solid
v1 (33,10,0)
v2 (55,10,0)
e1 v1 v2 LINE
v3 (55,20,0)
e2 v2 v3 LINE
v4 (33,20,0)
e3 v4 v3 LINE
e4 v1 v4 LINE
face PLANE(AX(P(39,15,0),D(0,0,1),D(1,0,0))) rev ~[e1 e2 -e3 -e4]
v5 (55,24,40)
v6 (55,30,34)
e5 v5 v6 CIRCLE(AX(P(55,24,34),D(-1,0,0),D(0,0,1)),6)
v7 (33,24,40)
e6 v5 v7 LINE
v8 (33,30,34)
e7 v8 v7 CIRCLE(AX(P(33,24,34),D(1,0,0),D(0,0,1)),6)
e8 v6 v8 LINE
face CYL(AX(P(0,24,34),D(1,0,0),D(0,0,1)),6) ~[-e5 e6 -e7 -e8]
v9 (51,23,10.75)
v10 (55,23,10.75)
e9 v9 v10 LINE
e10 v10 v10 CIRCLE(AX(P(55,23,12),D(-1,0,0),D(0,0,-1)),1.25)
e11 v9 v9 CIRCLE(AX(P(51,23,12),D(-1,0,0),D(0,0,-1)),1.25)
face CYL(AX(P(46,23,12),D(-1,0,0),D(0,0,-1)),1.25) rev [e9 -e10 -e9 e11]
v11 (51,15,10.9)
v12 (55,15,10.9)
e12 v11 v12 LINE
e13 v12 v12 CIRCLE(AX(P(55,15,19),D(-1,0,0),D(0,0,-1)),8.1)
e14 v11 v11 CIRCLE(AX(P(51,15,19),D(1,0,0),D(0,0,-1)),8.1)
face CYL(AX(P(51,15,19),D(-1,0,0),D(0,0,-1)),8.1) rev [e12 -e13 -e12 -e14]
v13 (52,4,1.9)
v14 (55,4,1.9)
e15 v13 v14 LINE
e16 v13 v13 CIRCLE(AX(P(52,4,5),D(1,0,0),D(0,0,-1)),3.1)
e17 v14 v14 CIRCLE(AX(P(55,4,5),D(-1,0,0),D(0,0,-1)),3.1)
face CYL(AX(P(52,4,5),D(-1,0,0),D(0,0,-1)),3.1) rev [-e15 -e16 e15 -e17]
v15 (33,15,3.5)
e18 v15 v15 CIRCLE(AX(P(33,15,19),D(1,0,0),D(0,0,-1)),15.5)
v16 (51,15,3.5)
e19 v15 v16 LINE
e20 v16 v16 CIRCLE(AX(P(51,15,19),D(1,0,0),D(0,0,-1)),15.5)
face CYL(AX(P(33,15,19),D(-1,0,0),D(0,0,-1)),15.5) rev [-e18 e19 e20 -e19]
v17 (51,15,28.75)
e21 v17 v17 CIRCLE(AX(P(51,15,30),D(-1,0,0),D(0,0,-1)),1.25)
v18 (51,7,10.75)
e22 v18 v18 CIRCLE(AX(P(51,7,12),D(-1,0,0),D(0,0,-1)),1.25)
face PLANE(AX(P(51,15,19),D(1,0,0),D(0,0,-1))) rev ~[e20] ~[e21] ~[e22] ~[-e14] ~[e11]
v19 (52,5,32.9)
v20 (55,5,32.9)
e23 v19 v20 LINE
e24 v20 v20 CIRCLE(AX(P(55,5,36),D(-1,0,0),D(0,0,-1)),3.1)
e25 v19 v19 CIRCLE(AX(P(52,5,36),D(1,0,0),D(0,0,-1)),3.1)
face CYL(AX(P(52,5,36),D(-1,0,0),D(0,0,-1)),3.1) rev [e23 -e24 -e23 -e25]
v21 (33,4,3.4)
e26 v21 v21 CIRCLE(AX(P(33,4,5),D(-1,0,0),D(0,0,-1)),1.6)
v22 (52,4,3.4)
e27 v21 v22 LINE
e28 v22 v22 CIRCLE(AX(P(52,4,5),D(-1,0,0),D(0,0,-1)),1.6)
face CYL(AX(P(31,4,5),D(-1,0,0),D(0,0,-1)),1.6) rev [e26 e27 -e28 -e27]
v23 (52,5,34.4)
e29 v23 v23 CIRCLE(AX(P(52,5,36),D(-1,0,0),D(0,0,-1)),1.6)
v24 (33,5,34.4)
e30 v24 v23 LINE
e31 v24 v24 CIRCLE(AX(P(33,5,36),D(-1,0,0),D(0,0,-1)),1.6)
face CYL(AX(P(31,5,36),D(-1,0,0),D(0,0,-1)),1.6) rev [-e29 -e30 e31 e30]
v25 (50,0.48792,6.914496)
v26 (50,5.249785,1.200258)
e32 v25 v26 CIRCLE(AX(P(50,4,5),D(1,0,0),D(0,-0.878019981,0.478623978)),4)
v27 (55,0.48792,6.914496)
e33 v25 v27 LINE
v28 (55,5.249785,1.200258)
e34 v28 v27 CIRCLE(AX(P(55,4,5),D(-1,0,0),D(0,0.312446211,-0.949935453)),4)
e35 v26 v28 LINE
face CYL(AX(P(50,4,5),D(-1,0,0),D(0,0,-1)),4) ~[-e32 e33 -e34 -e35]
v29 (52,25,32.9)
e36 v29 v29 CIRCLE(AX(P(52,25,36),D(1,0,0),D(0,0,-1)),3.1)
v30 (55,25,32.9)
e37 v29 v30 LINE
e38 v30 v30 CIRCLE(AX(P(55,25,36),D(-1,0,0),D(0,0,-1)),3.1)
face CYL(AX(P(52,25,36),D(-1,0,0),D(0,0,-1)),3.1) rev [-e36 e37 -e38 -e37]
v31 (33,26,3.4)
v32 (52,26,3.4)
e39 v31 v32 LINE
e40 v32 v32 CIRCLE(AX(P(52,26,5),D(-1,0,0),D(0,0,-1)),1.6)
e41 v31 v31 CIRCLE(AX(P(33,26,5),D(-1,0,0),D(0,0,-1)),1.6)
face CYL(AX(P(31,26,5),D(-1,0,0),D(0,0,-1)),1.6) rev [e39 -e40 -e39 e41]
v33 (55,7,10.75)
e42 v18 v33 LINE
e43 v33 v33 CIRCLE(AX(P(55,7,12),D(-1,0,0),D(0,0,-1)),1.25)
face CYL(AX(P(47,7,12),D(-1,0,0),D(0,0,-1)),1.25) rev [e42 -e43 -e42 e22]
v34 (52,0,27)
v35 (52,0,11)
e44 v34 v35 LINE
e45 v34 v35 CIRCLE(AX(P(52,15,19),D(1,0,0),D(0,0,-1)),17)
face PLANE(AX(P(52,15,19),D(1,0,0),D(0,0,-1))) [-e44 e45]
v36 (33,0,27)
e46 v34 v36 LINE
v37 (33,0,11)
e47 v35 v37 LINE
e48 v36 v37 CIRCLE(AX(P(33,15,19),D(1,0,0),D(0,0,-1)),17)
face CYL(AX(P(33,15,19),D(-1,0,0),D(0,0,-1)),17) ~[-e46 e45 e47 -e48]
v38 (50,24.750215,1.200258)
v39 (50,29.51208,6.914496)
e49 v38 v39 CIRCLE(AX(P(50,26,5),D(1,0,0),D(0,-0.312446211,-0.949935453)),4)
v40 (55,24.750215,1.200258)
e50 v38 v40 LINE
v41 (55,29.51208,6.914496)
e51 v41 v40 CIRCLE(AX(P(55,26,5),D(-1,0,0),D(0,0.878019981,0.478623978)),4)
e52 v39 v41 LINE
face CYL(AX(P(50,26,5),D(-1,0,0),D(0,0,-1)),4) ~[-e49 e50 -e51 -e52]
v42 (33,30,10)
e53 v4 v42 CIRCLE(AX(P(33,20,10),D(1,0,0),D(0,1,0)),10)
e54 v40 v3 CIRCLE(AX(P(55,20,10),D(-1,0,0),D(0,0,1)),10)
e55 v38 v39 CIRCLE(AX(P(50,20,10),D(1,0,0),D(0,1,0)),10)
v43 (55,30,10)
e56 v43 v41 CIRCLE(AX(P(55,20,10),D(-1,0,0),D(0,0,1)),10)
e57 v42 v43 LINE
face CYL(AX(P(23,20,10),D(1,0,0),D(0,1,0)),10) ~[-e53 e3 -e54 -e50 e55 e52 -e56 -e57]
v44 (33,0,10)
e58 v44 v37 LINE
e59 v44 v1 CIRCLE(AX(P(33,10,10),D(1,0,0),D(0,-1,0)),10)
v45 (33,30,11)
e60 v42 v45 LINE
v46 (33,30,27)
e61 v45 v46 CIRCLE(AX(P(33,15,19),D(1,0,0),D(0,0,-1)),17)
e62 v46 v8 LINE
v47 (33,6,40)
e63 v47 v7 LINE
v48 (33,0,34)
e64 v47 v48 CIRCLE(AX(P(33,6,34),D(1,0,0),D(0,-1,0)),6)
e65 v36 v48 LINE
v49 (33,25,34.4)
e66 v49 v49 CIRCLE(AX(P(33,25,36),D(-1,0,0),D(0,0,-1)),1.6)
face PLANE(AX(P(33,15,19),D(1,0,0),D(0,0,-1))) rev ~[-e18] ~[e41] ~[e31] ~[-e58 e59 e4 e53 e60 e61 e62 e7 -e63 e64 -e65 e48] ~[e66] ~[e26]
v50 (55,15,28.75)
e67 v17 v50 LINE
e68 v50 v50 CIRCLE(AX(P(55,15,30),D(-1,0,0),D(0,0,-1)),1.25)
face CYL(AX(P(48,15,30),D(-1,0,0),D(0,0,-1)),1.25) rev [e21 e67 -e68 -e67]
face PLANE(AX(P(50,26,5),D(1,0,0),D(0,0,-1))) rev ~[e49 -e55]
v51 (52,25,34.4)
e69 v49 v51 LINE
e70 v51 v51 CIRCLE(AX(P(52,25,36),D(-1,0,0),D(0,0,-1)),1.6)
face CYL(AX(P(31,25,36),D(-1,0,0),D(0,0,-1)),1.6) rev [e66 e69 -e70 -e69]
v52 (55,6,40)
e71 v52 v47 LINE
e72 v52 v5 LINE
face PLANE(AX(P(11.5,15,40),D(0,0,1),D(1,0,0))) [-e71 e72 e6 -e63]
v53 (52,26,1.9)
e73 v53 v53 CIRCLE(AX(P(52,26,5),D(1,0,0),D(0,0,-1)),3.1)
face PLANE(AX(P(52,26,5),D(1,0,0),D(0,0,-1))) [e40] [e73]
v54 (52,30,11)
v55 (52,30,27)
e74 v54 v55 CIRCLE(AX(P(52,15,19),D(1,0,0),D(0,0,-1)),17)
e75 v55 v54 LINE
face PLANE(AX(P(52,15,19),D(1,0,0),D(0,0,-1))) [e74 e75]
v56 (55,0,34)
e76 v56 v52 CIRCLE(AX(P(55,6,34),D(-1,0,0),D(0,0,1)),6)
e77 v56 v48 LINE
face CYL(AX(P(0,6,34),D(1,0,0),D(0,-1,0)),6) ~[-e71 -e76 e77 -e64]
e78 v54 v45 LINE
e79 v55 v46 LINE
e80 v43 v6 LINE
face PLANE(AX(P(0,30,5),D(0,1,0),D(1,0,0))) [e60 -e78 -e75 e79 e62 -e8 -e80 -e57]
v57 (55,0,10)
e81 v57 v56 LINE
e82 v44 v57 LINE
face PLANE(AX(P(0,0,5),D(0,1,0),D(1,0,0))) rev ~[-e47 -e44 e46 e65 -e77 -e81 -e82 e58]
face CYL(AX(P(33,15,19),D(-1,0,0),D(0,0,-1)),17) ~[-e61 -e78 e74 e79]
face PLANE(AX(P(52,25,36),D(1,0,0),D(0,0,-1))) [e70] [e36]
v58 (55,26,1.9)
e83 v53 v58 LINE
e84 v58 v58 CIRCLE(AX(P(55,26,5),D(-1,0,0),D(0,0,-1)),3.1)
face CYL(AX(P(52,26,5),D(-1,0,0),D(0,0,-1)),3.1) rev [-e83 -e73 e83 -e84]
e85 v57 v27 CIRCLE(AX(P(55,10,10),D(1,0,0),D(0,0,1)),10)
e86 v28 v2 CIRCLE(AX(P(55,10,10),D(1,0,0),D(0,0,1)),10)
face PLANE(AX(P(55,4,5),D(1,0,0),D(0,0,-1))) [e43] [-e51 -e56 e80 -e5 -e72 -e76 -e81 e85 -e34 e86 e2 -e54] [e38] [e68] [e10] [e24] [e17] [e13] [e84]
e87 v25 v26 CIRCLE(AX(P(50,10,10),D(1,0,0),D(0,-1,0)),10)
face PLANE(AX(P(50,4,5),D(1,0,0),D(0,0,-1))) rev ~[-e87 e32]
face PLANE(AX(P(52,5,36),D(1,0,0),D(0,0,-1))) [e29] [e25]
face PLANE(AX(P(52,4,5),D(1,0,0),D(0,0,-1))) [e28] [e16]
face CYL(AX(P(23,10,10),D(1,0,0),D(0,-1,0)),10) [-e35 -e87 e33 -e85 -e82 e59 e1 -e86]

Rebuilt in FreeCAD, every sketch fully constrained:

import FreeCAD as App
import Part
import Sketcher

V = App.Vector


def edges_at(feature, points):
    """Names of the edges that pass closest to the given points."""
    edges = feature.Shape.Edges
    near = lambda p: min(range(len(edges)), key=lambda i: edges[i].distToShape(Part.Vertex(*p))[0])
    return sorted({f"Edge{near(p) + 1}" for p in points})

doc = App.newDocument("Part")
body = doc.addObject("PartDesign::Body", "Body")

# Sketch on XY plane
sketch1 = body.newObject("Sketcher::SketchObject", "Sketch")
sketch1.AttachmentSupport = (doc.getObject("XY_Plane"), [""])
sketch1.MapMode = "FlatFace"
sketch1.addGeometry(Part.Circle(V(0, 0, 0), V(0, 0, 1), 1.2), False)
sketch1.addConstraint([
    Sketcher.Constraint("Coincident", 0, 3, -1, 1),
    Sketcher.Constraint("Diameter", 0, 2.5),
])
pad1 = body.newObject("PartDesign::Pad", "Pad")
pad1.Profile = sketch1
pad1.Length = 10
body2 = doc.addObject("PartDesign::Body", "Body001")
doc.recompute()

body.Placement = App.Placement(V(0, 0, 0), App.Rotation(V(0, 1, 0), 90))
boolean = body2.newObject("PartDesign::Boolean", "Boolean")
boolean.Type = "Fuse"
boolean.addObjects([body])
body3 = doc.addObject("PartDesign::Body", "Body002")
doc.recompute()

body2.Placement = App.Placement(V(48, 15, 30), App.Rotation(V(0, 0, 1), 0))
boolean2 = body3.newObject("PartDesign::Boolean", "Boolean001")
boolean2.Type = "Fuse"
boolean2.addObjects([body2])
body4 = doc.addObject("PartDesign::Body", "Body003")

# Sketch on XY plane
sketch2 = body4.newObject("Sketcher::SketchObject", "Sketch001")
sketch2.AttachmentSupport = (doc.getObject("XY_Plane003"), [""])
sketch2.MapMode = "FlatFace"
sketch2.addGeometry(Part.Circle(V(0, 0, 0), V(0, 0, 1), 1.2), False)
sketch2.addConstraint([
    Sketcher.Constraint("Coincident", 0, 3, -1, 1),
    Sketcher.Constraint("Diameter", 0, 2.5),
])
pad2 = body4.newObject("PartDesign::Pad", "Pad001")
pad2.Profile = sketch2
pad2.Length = 10
body5 = doc.addObject("PartDesign::Body", "Body004")
doc.recompute()

body4.Placement = App.Placement(V(0, 0, 0), App.Rotation(V(0, 1, 0), 90))
boolean3 = body5.newObject("PartDesign::Boolean", "Boolean002")
boolean3.Type = "Fuse"
boolean3.addObjects([body4])
body6 = doc.addObject("PartDesign::Body", "Body005")
doc.recompute()

body5.Placement = App.Placement(V(47, 7, 12), App.Rotation(V(0, 0, 1), 0))
boolean4 = body6.newObject("PartDesign::Boolean", "Boolean003")
boolean4.Type = "Fuse"
boolean4.addObjects([body5])
body7 = doc.addObject("PartDesign::Body", "Body006")

# Sketch on XY plane
sketch3 = body7.newObject("Sketcher::SketchObject", "Sketch002")
sketch3.AttachmentSupport = (doc.getObject("XY_Plane006"), [""])
sketch3.MapMode = "FlatFace"
sketch3.addGeometry(Part.Circle(V(0, 0, 0), V(0, 0, 1), 1.2), False)
sketch3.addConstraint([
    Sketcher.Constraint("Coincident", 0, 3, -1, 1),
    Sketcher.Constraint("Diameter", 0, 2.5),
])
pad3 = body7.newObject("PartDesign::Pad", "Pad002")
pad3.Profile = sketch3
pad3.Length = 10
body8 = doc.addObject("PartDesign::Body", "Body007")
doc.recompute()

body7.Placement = App.Placement(V(0, 0, 0), App.Rotation(V(0, 1, 0), 90))
boolean5 = body8.newObject("PartDesign::Boolean", "Boolean004")
boolean5.Type = "Fuse"
boolean5.addObjects([body7])
body9 = doc.addObject("PartDesign::Body", "Body008")
body9.AllowCompound = True
doc.recompute()

body8.Placement = App.Placement(V(46, 23, 12), App.Rotation(V(0, 0, 1), 0))
boolean6 = body9.newObject("PartDesign::Boolean", "Boolean005")
boolean6.Type = "Fuse"
boolean6.addObjects([body8])
doc.recompute()

boolean7 = body9.newObject("PartDesign::Boolean", "Boolean006")
boolean7.Type = "Fuse"
boolean7.addObjects([body6])
body10 = doc.addObject("PartDesign::Body", "Body009")

# Sketch on XY plane
sketch4 = body10.newObject("Sketcher::SketchObject", "Sketch003")
sketch4.AttachmentSupport = (doc.getObject("XY_Plane009"), [""])
sketch4.MapMode = "FlatFace"
sketch4.addGeometry(Part.Circle(V(0, 0, 0), V(0, 0, 1), 8), False)
sketch4.addConstraint([
    Sketcher.Constraint("Coincident", 0, 3, -1, 1),
    Sketcher.Constraint("Diameter", 0, 16.2),
])
pad4 = body10.newObject("PartDesign::Pad", "Pad003")
pad4.Profile = sketch4
pad4.Length = 5
body11 = doc.addObject("PartDesign::Body", "Body010")
doc.recompute()

body10.Placement = App.Placement(V(0, 0, 0), App.Rotation(V(0, 1, 0), 90))
boolean8 = body11.newObject("PartDesign::Boolean", "Boolean007")
boolean8.Type = "Fuse"
boolean8.addObjects([body10])
body12 = doc.addObject("PartDesign::Body", "Body011")
doc.recompute()

body11.Placement = App.Placement(V(51, 15, 19), App.Rotation(V(0, 0, 1), 0))
boolean9 = body12.newObject("PartDesign::Boolean", "Boolean008")
boolean9.Type = "Fuse"
boolean9.addObjects([body11])
body13 = doc.addObject("PartDesign::Body", "Body012")

# Sketch on XY plane
sketch5 = body13.newObject("Sketcher::SketchObject", "Sketch004")
sketch5.AttachmentSupport = (doc.getObject("XY_Plane012"), [""])
sketch5.MapMode = "FlatFace"
sketch5.addGeometry(Part.Circle(V(0, 0, 0), V(0, 0, 1), 1.6), False)
sketch5.addConstraint([
    Sketcher.Constraint("Coincident", 0, 3, -1, 1),
    Sketcher.Constraint("Diameter", 0, 3.2),
])
pad5 = body13.newObject("PartDesign::Pad", "Pad004")
pad5.Profile = sketch5
pad5.Length = 25
body14 = doc.addObject("PartDesign::Body", "Body013")
doc.recompute()

body13.Placement = App.Placement(V(0, 0, 0), App.Rotation(V(0, 1, 0), 90))
boolean10 = body14.newObject("PartDesign::Boolean", "Boolean009")
boolean10.Type = "Fuse"
boolean10.addObjects([body13])
body15 = doc.addObject("PartDesign::Body", "Body014")
doc.recompute()

body14.Placement = App.Placement(V(30, 0, 19), App.Rotation(V(0, 0, 1), 0))
boolean11 = body15.newObject("PartDesign::Boolean", "Boolean010")
boolean11.Type = "Fuse"
boolean11.addObjects([body14])
body16 = doc.addObject("PartDesign::Body", "Body015")

# Sketch on XY plane
sketch6 = body16.newObject("Sketcher::SketchObject", "Sketch005")
sketch6.AttachmentSupport = (doc.getObject("XY_Plane015"), [""])
sketch6.MapMode = "FlatFace"
sketch6.addGeometry(Part.Circle(V(0, 0, 0), V(0, 0, 1), 3.1), False)
sketch6.addConstraint([
    Sketcher.Constraint("Coincident", 0, 3, -1, 1),
    Sketcher.Constraint("Diameter", 0, 6.2),
])
pad6 = body16.newObject("PartDesign::Pad", "Pad005")
pad6.Profile = sketch6
pad6.Length = 4
body17 = doc.addObject("PartDesign::Body", "Body016")
doc.recompute()

body16.Placement = App.Placement(V(0, 0, 0), App.Rotation(V(0, 1, 0), 90))
boolean12 = body17.newObject("PartDesign::Boolean", "Boolean011")
boolean12.Type = "Fuse"
boolean12.addObjects([body16])
body18 = doc.addObject("PartDesign::Body", "Body017")
doc.recompute()

body17.Placement = App.Placement(V(51, 0, 19), App.Rotation(V(0, 0, 1), 0))
boolean13 = body18.newObject("PartDesign::Boolean", "Boolean012")
boolean13.Type = "Fuse"
boolean13.addObjects([body17])
doc.recompute()

boolean14 = body18.newObject("PartDesign::Boolean", "Boolean013")
boolean14.Type = "Fuse"
boolean14.addObjects([body15])
body19 = doc.addObject("PartDesign::Body", "Body018")
doc.recompute()

body18.Placement = App.Placement(V(0, 25, 17), App.Rotation(V(0, 0, 1), 0))
boolean15 = body19.newObject("PartDesign::Boolean", "Boolean014")
boolean15.Type = "Fuse"
boolean15.addObjects([body18])
body20 = doc.addObject("PartDesign::Body", "Body019")

# Sketch on XY plane
sketch7 = body20.newObject("Sketcher::SketchObject", "Sketch006")
sketch7.AttachmentSupport = (doc.getObject("XY_Plane019"), [""])
sketch7.MapMode = "FlatFace"
sketch7.addGeometry(Part.Circle(V(0, 0, 0), V(0, 0, 1), 1.6), False)
sketch7.addConstraint([
    Sketcher.Constraint("Coincident", 0, 3, -1, 1),
    Sketcher.Constraint("Diameter", 0, 3.2),
])
pad7 = body20.newObject("PartDesign::Pad", "Pad006")
pad7.Profile = sketch7
pad7.Length = 25
body21 = doc.addObject("PartDesign::Body", "Body020")
doc.recompute()

body20.Placement = App.Placement(V(0, 0, 0), App.Rotation(V(0, 1, 0), 90))
boolean16 = body21.newObject("PartDesign::Boolean", "Boolean015")
boolean16.Type = "Fuse"
boolean16.addObjects([body20])
body22 = doc.addObject("PartDesign::Body", "Body021")
doc.recompute()

body21.Placement = App.Placement(V(30, 0, 19), App.Rotation(V(0, 0, 1), 0))
boolean17 = body22.newObject("PartDesign::Boolean", "Boolean016")
boolean17.Type = "Fuse"
boolean17.addObjects([body21])
body23 = doc.addObject("PartDesign::Body", "Body022")

# Sketch on XY plane
sketch8 = body23.newObject("Sketcher::SketchObject", "Sketch007")
sketch8.AttachmentSupport = (doc.getObject("XY_Plane022"), [""])
sketch8.MapMode = "FlatFace"
sketch8.addGeometry(Part.Circle(V(0, 0, 0), V(0, 0, 1), 3.1), False)
sketch8.addConstraint([
    Sketcher.Constraint("Coincident", 0, 3, -1, 1),
    Sketcher.Constraint("Diameter", 0, 6.2),
])
pad8 = body23.newObject("PartDesign::Pad", "Pad007")
pad8.Profile = sketch8
pad8.Length = 4
body24 = doc.addObject("PartDesign::Body", "Body023")
doc.recompute()

body23.Placement = App.Placement(V(0, 0, 0), App.Rotation(V(0, 1, 0), 90))
boolean18 = body24.newObject("PartDesign::Boolean", "Boolean017")
boolean18.Type = "Fuse"
boolean18.addObjects([body23])
body25 = doc.addObject("PartDesign::Body", "Body024")
doc.recompute()

body24.Placement = App.Placement(V(51, 0, 19), App.Rotation(V(0, 0, 1), 0))
boolean19 = body25.newObject("PartDesign::Boolean", "Boolean018")
boolean19.Type = "Fuse"
boolean19.addObjects([body24])
doc.recompute()

boolean20 = body25.newObject("PartDesign::Boolean", "Boolean019")
boolean20.Type = "Fuse"
boolean20.addObjects([body22])
body26 = doc.addObject("PartDesign::Body", "Body025")
doc.recompute()

body25.Placement = App.Placement(V(0, 26, -14), App.Rotation(V(0, 0, 1), 0))
boolean21 = body26.newObject("PartDesign::Boolean", "Boolean020")
boolean21.Type = "Fuse"
boolean21.addObjects([body25])
body27 = doc.addObject("PartDesign::Body", "Body026")

# Sketch on XY plane
sketch9 = body27.newObject("Sketcher::SketchObject", "Sketch008")
sketch9.AttachmentSupport = (doc.getObject("XY_Plane026"), [""])
sketch9.MapMode = "FlatFace"
sketch9.addGeometry(Part.Circle(V(0, 0, 0), V(0, 0, 1), 1.6), False)
sketch9.addConstraint([
    Sketcher.Constraint("Coincident", 0, 3, -1, 1),
    Sketcher.Constraint("Diameter", 0, 3.2),
])
pad9 = body27.newObject("PartDesign::Pad", "Pad008")
pad9.Profile = sketch9
pad9.Length = 25
body28 = doc.addObject("PartDesign::Body", "Body027")
doc.recompute()

body27.Placement = App.Placement(V(0, 0, 0), App.Rotation(V(0, 1, 0), 90))
boolean22 = body28.newObject("PartDesign::Boolean", "Boolean021")
boolean22.Type = "Fuse"
boolean22.addObjects([body27])
body29 = doc.addObject("PartDesign::Body", "Body028")
doc.recompute()

body28.Placement = App.Placement(V(30, 0, 19), App.Rotation(V(0, 0, 1), 0))
boolean23 = body29.newObject("PartDesign::Boolean", "Boolean022")
boolean23.Type = "Fuse"
boolean23.addObjects([body28])
body30 = doc.addObject("PartDesign::Body", "Body029")

# Sketch on XY plane
sketch10 = body30.newObject("Sketcher::SketchObject", "Sketch009")
sketch10.AttachmentSupport = (doc.getObject("XY_Plane029"), [""])
sketch10.MapMode = "FlatFace"
sketch10.addGeometry(Part.Circle(V(0, 0, 0), V(0, 0, 1), 3.1), False)
sketch10.addConstraint([
    Sketcher.Constraint("Coincident", 0, 3, -1, 1),
    Sketcher.Constraint("Diameter", 0, 6.2),
])
pad10 = body30.newObject("PartDesign::Pad", "Pad009")
pad10.Profile = sketch10
pad10.Length = 4
body31 = doc.addObject("PartDesign::Body", "Body030")
doc.recompute()

body30.Placement = App.Placement(V(0, 0, 0), App.Rotation(V(0, 1, 0), 90))
boolean24 = body31.newObject("PartDesign::Boolean", "Boolean023")
boolean24.Type = "Fuse"
boolean24.addObjects([body30])
body32 = doc.addObject("PartDesign::Body", "Body031")
doc.recompute()

body31.Placement = App.Placement(V(51, 0, 19), App.Rotation(V(0, 0, 1), 0))
boolean25 = body32.newObject("PartDesign::Boolean", "Boolean024")
boolean25.Type = "Fuse"
boolean25.addObjects([body31])
doc.recompute()

boolean26 = body32.newObject("PartDesign::Boolean", "Boolean025")
boolean26.Type = "Fuse"
boolean26.addObjects([body29])
body33 = doc.addObject("PartDesign::Body", "Body032")
doc.recompute()

body32.Placement = App.Placement(V(0, 5, 17), App.Rotation(V(0, 0, 1), 0))
boolean27 = body33.newObject("PartDesign::Boolean", "Boolean026")
boolean27.Type = "Fuse"
boolean27.addObjects([body32])
body34 = doc.addObject("PartDesign::Body", "Body033")

# Sketch on XY plane
sketch11 = body34.newObject("Sketcher::SketchObject", "Sketch010")
sketch11.AttachmentSupport = (doc.getObject("XY_Plane033"), [""])
sketch11.MapMode = "FlatFace"
sketch11.addGeometry(Part.Circle(V(0, 0, 0), V(0, 0, 1), 1.6), False)
sketch11.addConstraint([
    Sketcher.Constraint("Coincident", 0, 3, -1, 1),
    Sketcher.Constraint("Diameter", 0, 3.2),
])
pad11 = body34.newObject("PartDesign::Pad", "Pad010")
pad11.Profile = sketch11
pad11.Length = 25
body35 = doc.addObject("PartDesign::Body", "Body034")
doc.recompute()

body34.Placement = App.Placement(V(0, 0, 0), App.Rotation(V(0, 1, 0), 90))
boolean28 = body35.newObject("PartDesign::Boolean", "Boolean027")
boolean28.Type = "Fuse"
boolean28.addObjects([body34])
body36 = doc.addObject("PartDesign::Body", "Body035")
doc.recompute()

body35.Placement = App.Placement(V(30, 0, 19), App.Rotation(V(0, 0, 1), 0))
boolean29 = body36.newObject("PartDesign::Boolean", "Boolean028")
boolean29.Type = "Fuse"
boolean29.addObjects([body35])
body37 = doc.addObject("PartDesign::Body", "Body036")

# Sketch on XY plane
sketch12 = body37.newObject("Sketcher::SketchObject", "Sketch011")
sketch12.AttachmentSupport = (doc.getObject("XY_Plane036"), [""])
sketch12.MapMode = "FlatFace"
sketch12.addGeometry(Part.Circle(V(0, 0, 0), V(0, 0, 1), 3.1), False)
sketch12.addConstraint([
    Sketcher.Constraint("Coincident", 0, 3, -1, 1),
    Sketcher.Constraint("Diameter", 0, 6.2),
])
pad12 = body37.newObject("PartDesign::Pad", "Pad011")
pad12.Profile = sketch12
pad12.Length = 4
body38 = doc.addObject("PartDesign::Body", "Body037")
doc.recompute()

body37.Placement = App.Placement(V(0, 0, 0), App.Rotation(V(0, 1, 0), 90))
boolean30 = body38.newObject("PartDesign::Boolean", "Boolean029")
boolean30.Type = "Fuse"
boolean30.addObjects([body37])
body39 = doc.addObject("PartDesign::Body", "Body038")
doc.recompute()

body38.Placement = App.Placement(V(51, 0, 19), App.Rotation(V(0, 0, 1), 0))
boolean31 = body39.newObject("PartDesign::Boolean", "Boolean030")
boolean31.Type = "Fuse"
boolean31.addObjects([body38])
doc.recompute()

boolean32 = body39.newObject("PartDesign::Boolean", "Boolean031")
boolean32.Type = "Fuse"
boolean32.addObjects([body36])
body40 = doc.addObject("PartDesign::Body", "Body039")
body40.AllowCompound = True
doc.recompute()

body39.Placement = App.Placement(V(0, 4, -14), App.Rotation(V(0, 0, 1), 0))
boolean33 = body40.newObject("PartDesign::Boolean", "Boolean032")
boolean33.Type = "Fuse"
boolean33.addObjects([body39])
doc.recompute()

boolean34 = body40.newObject("PartDesign::Boolean", "Boolean033")
boolean34.Type = "Fuse"
boolean34.addObjects([body19])
doc.recompute()

boolean35 = body40.newObject("PartDesign::Boolean", "Boolean034")
boolean35.Type = "Fuse"
boolean35.addObjects([body26])
doc.recompute()

boolean36 = body40.newObject("PartDesign::Boolean", "Boolean035")
boolean36.Type = "Fuse"
boolean36.addObjects([body33])
body41 = doc.addObject("PartDesign::Body", "Body040")
body41.AllowCompound = True
doc.recompute()

body40.Placement = App.Placement(V(1, 0, 0), App.Rotation(V(0, 0, 1), 0))
boolean37 = body41.newObject("PartDesign::Boolean", "Boolean036")
boolean37.Type = "Fuse"
boolean37.addObjects([body40])
body42 = doc.addObject("PartDesign::Body", "Body041")

# Sketch on XY plane
sketch13 = body42.newObject("Sketcher::SketchObject", "Sketch012")
sketch13.AttachmentSupport = (doc.getObject("XY_Plane041"), [""])
sketch13.MapMode = "FlatFace"
sketch13.addGeometry(Part.Circle(V(0, 0, 0), V(0, 0, 1), 16), False)
sketch13.addConstraint([
    Sketcher.Constraint("Coincident", 0, 3, -1, 1),
    Sketcher.Constraint("Diameter", 0, 31.0),
])
pad13 = body42.newObject("PartDesign::Pad", "Pad012")
pad13.Profile = sketch13
pad13.Length = 18
body43 = doc.addObject("PartDesign::Body", "Body042")
doc.recompute()

body42.Placement = App.Placement(V(0, 0, 0), App.Rotation(V(0, 1, 0), 90))
boolean38 = body43.newObject("PartDesign::Boolean", "Boolean037")
boolean38.Type = "Fuse"
boolean38.addObjects([body42])
body44 = doc.addObject("PartDesign::Body", "Body043")
doc.recompute()

body43.Placement = App.Placement(V(33, 15, 19), App.Rotation(V(0, 0, 1), 0))
boolean39 = body44.newObject("PartDesign::Boolean", "Boolean038")
boolean39.Type = "Fuse"
boolean39.addObjects([body43])
body45 = doc.addObject("PartDesign::Body", "Body044")

# Sketch on XY plane
sketch14 = body45.newObject("Sketcher::SketchObject", "Sketch013")
sketch14.AttachmentSupport = (doc.getObject("XY_Plane044"), [""])
sketch14.MapMode = "FlatFace"
sketch14.addGeometry(Part.Circle(V(0, 0, 0), V(0, 0, 1), 4), False)
sketch14.addConstraint([
    Sketcher.Constraint("Coincident", 0, 3, -1, 1),
    Sketcher.Constraint("Diameter", 0, 8.0),
])
pad14 = body45.newObject("PartDesign::Pad", "Pad013")
pad14.Profile = sketch14
pad14.Length = 5
body46 = doc.addObject("PartDesign::Body", "Body045")
doc.recompute()

body45.Placement = App.Placement(V(0, 0, 0), App.Rotation(V(0, 1, 0), 90))
boolean40 = body46.newObject("PartDesign::Boolean", "Boolean039")
boolean40.Type = "Fuse"
boolean40.addObjects([body45])
body47 = doc.addObject("PartDesign::Body", "Body046")
doc.recompute()

body46.Placement = App.Placement(V(50, 26, 5), App.Rotation(V(0, 0, 1), 0))
boolean41 = body47.newObject("PartDesign::Boolean", "Boolean040")
boolean41.Type = "Fuse"
boolean41.addObjects([body46])
body48 = doc.addObject("PartDesign::Body", "Body047")

# Sketch on XY plane
sketch15 = body48.newObject("Sketcher::SketchObject", "Sketch014")
sketch15.AttachmentSupport = (doc.getObject("XY_Plane047"), [""])
sketch15.MapMode = "FlatFace"
sketch15.addGeometry(Part.Circle(V(0, 0, 0), V(0, 0, 1), 4), False)
sketch15.addConstraint([
    Sketcher.Constraint("Coincident", 0, 3, -1, 1),
    Sketcher.Constraint("Diameter", 0, 8.0),
])
pad15 = body48.newObject("PartDesign::Pad", "Pad014")
pad15.Profile = sketch15
pad15.Length = 5
body49 = doc.addObject("PartDesign::Body", "Body048")
doc.recompute()

body48.Placement = App.Placement(V(0, 0, 0), App.Rotation(V(0, 1, 0), 90))
boolean42 = body49.newObject("PartDesign::Boolean", "Boolean041")
boolean42.Type = "Fuse"
boolean42.addObjects([body48])
body50 = doc.addObject("PartDesign::Body", "Body049")
doc.recompute()

body49.Placement = App.Placement(V(50, 4, 5), App.Rotation(V(0, 0, 1), 0))
boolean43 = body50.newObject("PartDesign::Boolean", "Boolean042")
boolean43.Type = "Fuse"
boolean43.addObjects([body49])
body51 = doc.addObject("PartDesign::Body", "Body050")

# Sketch on XY plane
sketch16 = body51.newObject("Sketcher::SketchObject", "Sketch015")
sketch16.AttachmentSupport = (doc.getObject("XY_Plane050"), [""])
sketch16.MapMode = "FlatFace"
sketch16.addGeometry([
    Part.LineSegment(V(0, 30, 0), V(0, 0, 0)),
    Part.LineSegment(V(0, 0, 0), V(33, 0, 0)),
    Part.LineSegment(V(33, 0, 0), V(33, 30, 0)),
    Part.LineSegment(V(33, 30, 0), V(0, 30, 0)),
], False)
sketch16.addConstraint([
    Sketcher.Constraint("Coincident", 0, 2, 1, 1),
    Sketcher.Constraint("Coincident", 1, 2, 2, 1),
    Sketcher.Constraint("Coincident", 2, 2, 3, 1),
    Sketcher.Constraint("Coincident", 3, 2, 0, 1),
    Sketcher.Constraint("Vertical", 0),
    Sketcher.Constraint("Horizontal", 1),
    Sketcher.Constraint("Vertical", 2),
    Sketcher.Constraint("Horizontal", 3),
    Sketcher.Constraint("Coincident", 0, 2, -1, 1),
    Sketcher.Constraint("DistanceX", 1, 1, 1, 2, 33.0),
    Sketcher.Constraint("DistanceY", 0, 2, 0, 1, 30.0),
])
pad16 = body51.newObject("PartDesign::Pad", "Pad015")
pad16.Profile = sketch16
pad16.Length = 40
body52 = doc.addObject("PartDesign::Body", "Body051")

# Sketch on XY plane
sketch17 = body52.newObject("Sketcher::SketchObject", "Sketch016")
sketch17.AttachmentSupport = (doc.getObject("XY_Plane051"), [""])
sketch17.MapMode = "FlatFace"
sketch17.addGeometry(Part.Circle(V(0, 0, 0), V(0, 0, 1), 17), False)
sketch17.addConstraint([
    Sketcher.Constraint("Coincident", 0, 3, -1, 1),
    Sketcher.Constraint("Diameter", 0, 34.0),
])
pad17 = body52.newObject("PartDesign::Pad", "Pad016")
pad17.Profile = sketch17
pad17.Length = 19
body53 = doc.addObject("PartDesign::Body", "Body052")
doc.recompute()

body52.Placement = App.Placement(V(0, 0, 0), App.Rotation(V(0, 1, 0), 90))
boolean44 = body53.newObject("PartDesign::Boolean", "Boolean043")
boolean44.Type = "Fuse"
boolean44.addObjects([body52])
body54 = doc.addObject("PartDesign::Body", "Body053")
doc.recompute()

body53.Placement = App.Placement(V(33, 15, 19), App.Rotation(V(0, 0, 1), 0))
boolean45 = body54.newObject("PartDesign::Boolean", "Boolean044")
boolean45.Type = "Fuse"
boolean45.addObjects([body53])
body55 = doc.addObject("PartDesign::Body", "Body054")

# Sketch on XY plane
sketch18 = body55.newObject("Sketcher::SketchObject", "Sketch017")
sketch18.AttachmentSupport = (doc.getObject("XY_Plane054"), [""])
sketch18.MapMode = "FlatFace"
sketch18.AttachmentOffset = App.Placement(V(0, 0, 5), App.Rotation())
sketch18.addGeometry([
    Part.LineSegment(V(0, 30, 0), V(0, 0, 0)),
    Part.LineSegment(V(0, 0, 0), V(23, 0, 0)),
    Part.LineSegment(V(23, 0, 0), V(23, 30, 0)),
    Part.LineSegment(V(23, 30, 0), V(0, 30, 0)),
], False)
sketch18.addConstraint([
    Sketcher.Constraint("Coincident", 0, 2, 1, 1),
    Sketcher.Constraint("Coincident", 1, 2, 2, 1),
    Sketcher.Constraint("Coincident", 2, 2, 3, 1),
    Sketcher.Constraint("Coincident", 3, 2, 0, 1),
    Sketcher.Constraint("Vertical", 0),
    Sketcher.Constraint("Horizontal", 1),
    Sketcher.Constraint("Vertical", 2),
    Sketcher.Constraint("Horizontal", 3),
    Sketcher.Constraint("Coincident", 0, 2, -1, 1),
    Sketcher.Constraint("DistanceX", 1, 1, 1, 2, 23.0),
    Sketcher.Constraint("DistanceY", 0, 2, 0, 1, 30.0),
])
pad18 = body55.newObject("PartDesign::Pad", "Pad017")
pad18.Profile = sketch18
pad18.Length = 35
doc.recompute()

fillet = body55.newObject("PartDesign::Fillet", "Fillet")
fillet.Base = (pad18, edges_at(pad18, [(11.5, 0, 5), (11.5, 30, 5)]))
fillet.Radius = 10
doc.recompute()

fillet2 = body55.newObject("PartDesign::Fillet", "Fillet001")
fillet2.Base = (fillet, edges_at(fillet, [(11.5, 0, 40), (11.5, 30, 40)]))
fillet2.Radius = 6
body56 = doc.addObject("PartDesign::Body", "Body055")

# Sketch on XY plane
sketch19 = body56.newObject("Sketcher::SketchObject", "Sketch018")
sketch19.AttachmentSupport = (doc.getObject("XY_Plane055"), [""])
sketch19.MapMode = "FlatFace"
sketch19.addGeometry([
    Part.LineSegment(V(23, 30, 0), V(23, 0, 0)),
    Part.LineSegment(V(23, 0, 0), V(55, 0, 0)),
    Part.LineSegment(V(55, 0, 0), V(55, 30, 0)),
    Part.LineSegment(V(55, 30, 0), V(23, 30, 0)),
], False)
sketch19.addConstraint([
    Sketcher.Constraint("Coincident", 0, 2, 1, 1),
    Sketcher.Constraint("Coincident", 1, 2, 2, 1),
    Sketcher.Constraint("Coincident", 2, 2, 3, 1),
    Sketcher.Constraint("Coincident", 3, 2, 0, 1),
    Sketcher.Constraint("Vertical", 0),
    Sketcher.Constraint("Horizontal", 1),
    Sketcher.Constraint("Vertical", 2),
    Sketcher.Constraint("Horizontal", 3),
    Sketcher.Constraint("PointOnObject", 0, 2, -1),
    Sketcher.Constraint("DistanceX", 1, 1, 1, 2, 32.0),
    Sketcher.Constraint("DistanceY", 0, 2, 0, 1, 30.0),
    Sketcher.Constraint("DistanceX", -1, 1, 0, 2, 23.0),
])
pad19 = body56.newObject("PartDesign::Pad", "Pad018")
pad19.Profile = sketch19
pad19.Length = 40
doc.recompute()

fillet3 = body56.newObject("PartDesign::Fillet", "Fillet002")
fillet3.Base = (pad19, edges_at(pad19, [(39, 0, 0), (39, 30, 0)]))
fillet3.Radius = 10
doc.recompute()

fillet4 = body56.newObject("PartDesign::Fillet", "Fillet003")
fillet4.Base = (fillet3, edges_at(fillet3, [(39, 0, 40), (39, 30, 40)]))
fillet4.Radius = 6
doc.recompute()

boolean46 = body56.newObject("PartDesign::Boolean", "Boolean045")
boolean46.Type = "Fuse"
boolean46.addObjects([body55])
doc.recompute()

boolean47 = body56.newObject("PartDesign::Boolean", "Boolean046")
boolean47.Type = "Fuse"
boolean47.addObjects([body54])
doc.recompute()

boolean48 = body56.newObject("PartDesign::Boolean", "Boolean047")
boolean48.Type = "Cut"
boolean48.addObjects([body51])
doc.recompute()

boolean49 = body56.newObject("PartDesign::Boolean", "Boolean048")
boolean49.Type = "Fuse"
boolean49.addObjects([body47])
doc.recompute()

boolean50 = body56.newObject("PartDesign::Boolean", "Boolean049")
boolean50.Type = "Fuse"
boolean50.addObjects([body50])
doc.recompute()

boolean51 = body56.newObject("PartDesign::Boolean", "Boolean050")
boolean51.Type = "Cut"
boolean51.addObjects([body44])
doc.recompute()

boolean52 = body56.newObject("PartDesign::Boolean", "Boolean051")
boolean52.Type = "Cut"
boolean52.addObjects([body41])
doc.recompute()

boolean53 = body56.newObject("PartDesign::Boolean", "Boolean052")
boolean53.Type = "Cut"
boolean53.addObjects([body12])
doc.recompute()

boolean54 = body56.newObject("PartDesign::Boolean", "Boolean053")
boolean54.Type = "Cut"
boolean54.addObjects([body9])
doc.recompute()

boolean55 = body56.newObject("PartDesign::Boolean", "Boolean054")
boolean55.Type = "Cut"
boolean55.addObjects([body3])

doc.recompute()
